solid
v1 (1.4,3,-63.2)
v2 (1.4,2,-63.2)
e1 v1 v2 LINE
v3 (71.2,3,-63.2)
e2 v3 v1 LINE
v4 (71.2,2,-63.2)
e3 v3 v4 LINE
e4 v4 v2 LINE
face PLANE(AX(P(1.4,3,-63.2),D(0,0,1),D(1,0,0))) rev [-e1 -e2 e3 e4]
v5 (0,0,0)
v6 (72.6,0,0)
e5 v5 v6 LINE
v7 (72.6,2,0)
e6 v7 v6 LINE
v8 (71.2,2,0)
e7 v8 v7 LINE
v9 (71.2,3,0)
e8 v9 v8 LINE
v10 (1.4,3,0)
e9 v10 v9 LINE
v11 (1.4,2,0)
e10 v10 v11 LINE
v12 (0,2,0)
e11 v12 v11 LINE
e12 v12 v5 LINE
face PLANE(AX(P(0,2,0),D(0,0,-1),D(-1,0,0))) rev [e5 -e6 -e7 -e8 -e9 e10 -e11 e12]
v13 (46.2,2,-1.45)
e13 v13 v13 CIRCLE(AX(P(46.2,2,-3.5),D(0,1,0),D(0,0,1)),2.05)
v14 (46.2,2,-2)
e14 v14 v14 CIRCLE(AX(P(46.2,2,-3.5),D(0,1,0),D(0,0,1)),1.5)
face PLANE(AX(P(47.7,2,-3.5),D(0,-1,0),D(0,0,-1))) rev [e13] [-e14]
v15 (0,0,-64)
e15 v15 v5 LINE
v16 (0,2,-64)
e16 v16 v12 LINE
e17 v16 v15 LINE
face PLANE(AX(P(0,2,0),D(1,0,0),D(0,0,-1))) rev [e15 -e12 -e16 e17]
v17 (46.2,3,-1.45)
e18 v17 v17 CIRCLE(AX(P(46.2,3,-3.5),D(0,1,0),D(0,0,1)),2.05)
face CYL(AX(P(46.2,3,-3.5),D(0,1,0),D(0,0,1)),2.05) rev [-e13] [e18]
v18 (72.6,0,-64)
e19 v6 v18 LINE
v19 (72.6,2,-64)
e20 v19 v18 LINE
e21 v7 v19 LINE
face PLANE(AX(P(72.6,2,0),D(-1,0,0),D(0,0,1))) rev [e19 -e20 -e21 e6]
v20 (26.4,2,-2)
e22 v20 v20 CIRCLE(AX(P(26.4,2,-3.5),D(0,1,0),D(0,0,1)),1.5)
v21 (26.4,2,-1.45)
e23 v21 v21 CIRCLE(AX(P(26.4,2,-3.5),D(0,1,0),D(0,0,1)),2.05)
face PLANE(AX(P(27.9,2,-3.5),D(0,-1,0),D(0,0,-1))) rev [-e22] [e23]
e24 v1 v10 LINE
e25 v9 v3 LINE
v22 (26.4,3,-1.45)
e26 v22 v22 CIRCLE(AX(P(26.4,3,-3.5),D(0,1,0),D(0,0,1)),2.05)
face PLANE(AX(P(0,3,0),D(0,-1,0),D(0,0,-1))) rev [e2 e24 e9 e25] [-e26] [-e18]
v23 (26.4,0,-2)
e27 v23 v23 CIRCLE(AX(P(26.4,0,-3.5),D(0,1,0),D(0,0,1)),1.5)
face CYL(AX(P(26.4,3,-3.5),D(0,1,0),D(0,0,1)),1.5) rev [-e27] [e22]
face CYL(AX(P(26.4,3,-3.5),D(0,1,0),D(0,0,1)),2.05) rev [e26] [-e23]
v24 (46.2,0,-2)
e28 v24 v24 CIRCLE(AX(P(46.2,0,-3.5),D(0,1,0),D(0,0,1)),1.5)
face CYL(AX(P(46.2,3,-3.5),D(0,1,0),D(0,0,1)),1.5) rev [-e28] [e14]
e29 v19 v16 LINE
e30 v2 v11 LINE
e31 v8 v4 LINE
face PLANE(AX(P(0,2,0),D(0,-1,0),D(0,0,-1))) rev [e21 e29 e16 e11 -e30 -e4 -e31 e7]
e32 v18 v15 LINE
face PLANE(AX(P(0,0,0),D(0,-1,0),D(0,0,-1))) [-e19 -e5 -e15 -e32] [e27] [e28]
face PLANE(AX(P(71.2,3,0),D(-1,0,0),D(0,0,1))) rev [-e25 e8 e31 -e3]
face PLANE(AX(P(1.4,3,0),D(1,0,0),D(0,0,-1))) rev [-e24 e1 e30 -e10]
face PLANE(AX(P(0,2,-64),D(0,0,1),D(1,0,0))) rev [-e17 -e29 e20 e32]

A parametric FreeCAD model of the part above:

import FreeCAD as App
import Part
import Sketcher
Q = App.Units.Quantity


def add_polygon(sketch, points):
    """Adds a closed chain of lines whose ends are joined by coincident constraints."""
    first, n = sketch.GeometryCount, len(points)
    for a, b in zip(points, points[1:] + points[:1]):
        sketch.addGeometry(Part.LineSegment(App.Vector(*a, 0), App.Vector(*b, 0)), False)
    for i in range(n):
        sketch.addConstraint(Sketcher.Constraint("Coincident", first + i, 2, first + (i + 1) % n, 1))

doc = App.newDocument("Part")
body = doc.addObject("PartDesign::Body", "Body")

sketch1 = doc.addObject("Sketcher::SketchObject", "Sketch")
body.addObject(sketch1)
sketch1.AttachmentSupport = (doc.XZ_Plane, [""])
sketch1.MapMode = "FlatFace"
add_polygon(sketch1, [(0, -64), (0, 0), (72.6, 0), (72.6, -64)])
sketch1.addConstraint(Sketcher.Constraint("Vertical", 0))
sketch1.addConstraint(Sketcher.Constraint("Horizontal", 1))
sketch1.addConstraint(Sketcher.Constraint("Vertical", 2))
sketch1.addConstraint(Sketcher.Constraint("Horizontal", 3))
sketch1.addConstraint(Sketcher.Constraint("Coincident", 0, 2, -1, 1))
sketch1.addConstraint(Sketcher.Constraint("DistanceY", 0, 1, 0, 2, Q("64 mm")))
sketch1.addConstraint(Sketcher.Constraint("DistanceX", 1, 1, 1, 2, Q("72.6 mm")))
pad1 = doc.addObject("PartDesign::Pad", "Pad")
body.addObject(pad1)
pad1.Profile = sketch1
pad1.Length = 2
pad1.Reversed = True

sketch2 = doc.addObject("Sketcher::SketchObject", "Sketch001")
body.addObject(sketch2)
sketch2.AttachmentSupport = (doc.XZ_Plane, [""])
sketch2.MapMode = "FlatFace"
sketch2.AttachmentOffset = App.Placement(App.Vector(0, 0, -2), App.Rotation())
add_polygon(sketch2, [(1.4, -63.2), (1.4, 0), (71.2, 0), (71.2, -63.2)])
sketch2.addConstraint(Sketcher.Constraint("Vertical", 0))
sketch2.addConstraint(Sketcher.Constraint("Horizontal", 1))
sketch2.addConstraint(Sketcher.Constraint("Vertical", 2))
sketch2.addConstraint(Sketcher.Constraint("Horizontal", 3))
sketch2.addConstraint(Sketcher.Constraint("PointOnObject", 0, 2, -1))
sketch2.addConstraint(Sketcher.Constraint("DistanceX", 1, 1, 1, 2, Q("69.8 mm")))
sketch2.addConstraint(Sketcher.Constraint("DistanceY", 0, 1, 0, 2, Q("63.2 mm")))
sketch2.addConstraint(Sketcher.Constraint("DistanceX", -1, 1, 0, 2, Q("1.4 mm")))
pad2 = doc.addObject("PartDesign::Pad", "Pad001")
body.addObject(pad2)
pad2.Profile = sketch2
pad2.Length = 1
pad2.Reversed = True

sketch3 = doc.addObject("Sketcher::SketchObject", "Sketch002")
body.addObject(sketch3)
sketch3.AttachmentSupport = (doc.XZ_Plane, [""])
sketch3.MapMode = "FlatFace"
sketch3.AttachmentOffset = App.Placement(App.Vector(0, 0, -3), App.Rotation())
sketch3.addGeometry(Part.Circle(App.Vector(26.4, -3.5, 0), App.Vector(0, 0, 1), 1.5), False)
sketch3.addGeometry(Part.Circle(App.Vector(46.2, -3.5, 0), App.Vector(0, 0, 1), 1.5), False)
sketch3.addConstraint(Sketcher.Constraint("Equal", 0, 1))
sketch3.addConstraint(Sketcher.Constraint("Horizontal", 0, 3, 1, 3))
sketch3.addConstraint(Sketcher.Constraint("Diameter", 0, Q("3 mm")))
sketch3.addConstraint(Sketcher.Constraint("DistanceX", -1, 1, 0, 3, Q("26.4 mm")))
sketch3.addConstraint(Sketcher.Constraint("DistanceY", 0, 3, -1, 1, Q("3.5 mm")))
sketch3.addConstraint(Sketcher.Constraint("DistanceX", -1, 1, 1, 3, Q("46.2 mm")))
doc.recompute()
hole = doc.addObject("PartDesign::Hole", "Hole")
body.addObject(hole)
hole.Profile = sketch3
hole.ThreadType = "None"
hole.Diameter = 3
hole.DepthType = "ThroughAll"
hole.HoleCutType = "Counterbore"
hole.HoleCutDiameter = 4.1
hole.HoleCutDepth = 1
hole.Reversed = True

doc.recompute()
